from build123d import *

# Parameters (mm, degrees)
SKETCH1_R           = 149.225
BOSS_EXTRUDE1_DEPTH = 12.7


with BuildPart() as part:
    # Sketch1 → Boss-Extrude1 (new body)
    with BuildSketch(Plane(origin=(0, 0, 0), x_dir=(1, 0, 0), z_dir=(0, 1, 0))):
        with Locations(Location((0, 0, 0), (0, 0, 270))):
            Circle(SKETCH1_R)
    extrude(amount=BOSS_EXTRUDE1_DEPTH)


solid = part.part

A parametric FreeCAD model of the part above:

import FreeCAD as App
import Part
import Sketcher

V = App.Vector
Q = App.Units.Quantity

doc = App.newDocument("Part")
body = doc.addObject("PartDesign::Body", "Body")

# Sketch on XZ plane
sketch1 = body.newObject("Sketcher::SketchObject", "Sketch")
sketch1.AttachmentSupport = (doc.getObject("XZ_Plane"), [""])
sketch1.MapMode = "FlatFace"
sketch1.addGeometry(Part.Circle(V(0, 0, 0), V(0, 0, 1), 149.225), False)
sketch1.addConstraint(Sketcher.Constraint("Coincident", 0, 3, -1, 1))
sketch1.addConstraint(Sketcher.Constraint("Diameter", 0, Q("11.75 in")))
pad1 = body.newObject("PartDesign::Pad", "Pad")
pad1.Profile = sketch1
pad1.Length = Q("0.5 in")
pad1.Reversed = True

doc.recompute()
